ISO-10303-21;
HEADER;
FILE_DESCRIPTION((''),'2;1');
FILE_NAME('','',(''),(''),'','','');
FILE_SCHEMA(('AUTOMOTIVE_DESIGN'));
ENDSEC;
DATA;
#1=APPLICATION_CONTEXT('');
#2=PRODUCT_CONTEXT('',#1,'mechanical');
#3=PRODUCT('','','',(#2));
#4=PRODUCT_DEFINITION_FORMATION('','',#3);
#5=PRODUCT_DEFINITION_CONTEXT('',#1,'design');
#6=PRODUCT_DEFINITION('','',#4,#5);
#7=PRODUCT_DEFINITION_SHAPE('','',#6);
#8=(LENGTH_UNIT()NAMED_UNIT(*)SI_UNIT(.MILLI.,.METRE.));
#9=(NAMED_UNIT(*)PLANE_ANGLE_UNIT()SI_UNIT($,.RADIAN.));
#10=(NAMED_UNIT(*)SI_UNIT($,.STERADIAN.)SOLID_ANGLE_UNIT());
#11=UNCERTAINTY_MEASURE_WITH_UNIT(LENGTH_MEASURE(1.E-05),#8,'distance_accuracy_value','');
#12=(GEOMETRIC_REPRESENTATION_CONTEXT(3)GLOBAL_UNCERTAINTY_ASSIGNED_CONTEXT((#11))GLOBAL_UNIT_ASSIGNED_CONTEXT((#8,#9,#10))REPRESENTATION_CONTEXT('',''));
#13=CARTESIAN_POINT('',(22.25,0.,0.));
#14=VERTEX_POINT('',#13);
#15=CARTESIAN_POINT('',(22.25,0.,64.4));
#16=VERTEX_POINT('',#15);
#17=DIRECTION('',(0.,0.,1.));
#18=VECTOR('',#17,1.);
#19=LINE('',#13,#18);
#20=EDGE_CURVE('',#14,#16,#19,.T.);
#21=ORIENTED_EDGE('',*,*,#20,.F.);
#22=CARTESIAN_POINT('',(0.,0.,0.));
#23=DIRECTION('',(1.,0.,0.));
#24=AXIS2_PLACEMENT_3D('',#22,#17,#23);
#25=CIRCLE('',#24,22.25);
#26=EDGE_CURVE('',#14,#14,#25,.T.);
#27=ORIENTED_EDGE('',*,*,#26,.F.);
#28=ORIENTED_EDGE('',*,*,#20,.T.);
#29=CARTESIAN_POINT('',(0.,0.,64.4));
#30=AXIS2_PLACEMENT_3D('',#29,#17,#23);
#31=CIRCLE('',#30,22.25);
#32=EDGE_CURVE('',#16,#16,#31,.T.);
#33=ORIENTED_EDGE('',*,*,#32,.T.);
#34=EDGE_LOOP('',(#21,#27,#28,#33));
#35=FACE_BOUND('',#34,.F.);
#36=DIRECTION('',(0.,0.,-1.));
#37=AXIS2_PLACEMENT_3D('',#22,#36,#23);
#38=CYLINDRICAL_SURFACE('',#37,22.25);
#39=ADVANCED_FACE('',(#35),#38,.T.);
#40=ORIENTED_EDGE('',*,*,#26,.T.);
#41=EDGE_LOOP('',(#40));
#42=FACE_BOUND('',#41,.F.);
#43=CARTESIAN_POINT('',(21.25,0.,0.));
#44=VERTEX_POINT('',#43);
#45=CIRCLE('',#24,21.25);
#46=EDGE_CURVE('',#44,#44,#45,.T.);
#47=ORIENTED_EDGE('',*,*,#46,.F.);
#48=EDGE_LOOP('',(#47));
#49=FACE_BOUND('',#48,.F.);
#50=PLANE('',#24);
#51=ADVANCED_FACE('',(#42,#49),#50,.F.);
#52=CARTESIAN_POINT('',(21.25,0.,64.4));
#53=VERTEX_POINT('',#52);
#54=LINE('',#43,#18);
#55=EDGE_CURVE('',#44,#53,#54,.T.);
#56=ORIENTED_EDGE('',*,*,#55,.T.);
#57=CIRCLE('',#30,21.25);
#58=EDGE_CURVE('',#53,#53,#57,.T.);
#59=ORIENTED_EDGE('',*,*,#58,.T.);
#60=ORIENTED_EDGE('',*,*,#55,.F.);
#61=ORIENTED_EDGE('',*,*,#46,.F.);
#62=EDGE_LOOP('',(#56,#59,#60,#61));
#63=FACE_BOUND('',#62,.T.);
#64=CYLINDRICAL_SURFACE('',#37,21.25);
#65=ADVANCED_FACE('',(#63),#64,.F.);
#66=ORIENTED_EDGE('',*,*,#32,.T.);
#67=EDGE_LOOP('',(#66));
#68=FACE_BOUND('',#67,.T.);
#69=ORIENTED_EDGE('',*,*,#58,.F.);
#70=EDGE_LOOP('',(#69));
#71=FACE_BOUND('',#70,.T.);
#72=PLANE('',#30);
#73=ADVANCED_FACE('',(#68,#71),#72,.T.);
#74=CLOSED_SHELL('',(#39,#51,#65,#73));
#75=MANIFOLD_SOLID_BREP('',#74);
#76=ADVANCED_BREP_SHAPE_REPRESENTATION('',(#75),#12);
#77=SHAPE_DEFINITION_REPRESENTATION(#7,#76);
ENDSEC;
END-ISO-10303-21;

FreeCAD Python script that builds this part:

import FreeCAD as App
import Part
import Sketcher
from FreeCAD import Vector
Q = App.Units.Quantity

doc = App.newDocument("Part")
body = doc.addObject("PartDesign::Body", "Body")

# Sketch on XY plane
sketch1 = body.newObject("Sketcher::SketchObject", "Sketch")
sketch1.AttachmentSupport = (doc.getObject("XY_Plane"), [""])
sketch1.MapMode = "FlatFace"
sketch1.addGeometry(Part.Circle(Vector(0, 0, 0), Vector(0, 0, 1), 22.25), False)
sketch1.addGeometry(Part.Circle(Vector(0, 0, 0), Vector(0, 0, 1), 21.25), False)
sketch1.addConstraint(Sketcher.Constraint("Coincident", 0, 3, -1, 1))
sketch1.addConstraint(Sketcher.Constraint("Coincident", 1, 3, -1, 1))
sketch1.addConstraint(Sketcher.Constraint("Diameter", 0, Q("44.5 mm")))
sketch1.addConstraint(Sketcher.Constraint("Diameter", 1, Q("42.5 mm")))
pad1 = body.newObject("PartDesign::Pad", "Pad")
pad1.Profile = sketch1
pad1.Length = 64.4

doc.recompute()
